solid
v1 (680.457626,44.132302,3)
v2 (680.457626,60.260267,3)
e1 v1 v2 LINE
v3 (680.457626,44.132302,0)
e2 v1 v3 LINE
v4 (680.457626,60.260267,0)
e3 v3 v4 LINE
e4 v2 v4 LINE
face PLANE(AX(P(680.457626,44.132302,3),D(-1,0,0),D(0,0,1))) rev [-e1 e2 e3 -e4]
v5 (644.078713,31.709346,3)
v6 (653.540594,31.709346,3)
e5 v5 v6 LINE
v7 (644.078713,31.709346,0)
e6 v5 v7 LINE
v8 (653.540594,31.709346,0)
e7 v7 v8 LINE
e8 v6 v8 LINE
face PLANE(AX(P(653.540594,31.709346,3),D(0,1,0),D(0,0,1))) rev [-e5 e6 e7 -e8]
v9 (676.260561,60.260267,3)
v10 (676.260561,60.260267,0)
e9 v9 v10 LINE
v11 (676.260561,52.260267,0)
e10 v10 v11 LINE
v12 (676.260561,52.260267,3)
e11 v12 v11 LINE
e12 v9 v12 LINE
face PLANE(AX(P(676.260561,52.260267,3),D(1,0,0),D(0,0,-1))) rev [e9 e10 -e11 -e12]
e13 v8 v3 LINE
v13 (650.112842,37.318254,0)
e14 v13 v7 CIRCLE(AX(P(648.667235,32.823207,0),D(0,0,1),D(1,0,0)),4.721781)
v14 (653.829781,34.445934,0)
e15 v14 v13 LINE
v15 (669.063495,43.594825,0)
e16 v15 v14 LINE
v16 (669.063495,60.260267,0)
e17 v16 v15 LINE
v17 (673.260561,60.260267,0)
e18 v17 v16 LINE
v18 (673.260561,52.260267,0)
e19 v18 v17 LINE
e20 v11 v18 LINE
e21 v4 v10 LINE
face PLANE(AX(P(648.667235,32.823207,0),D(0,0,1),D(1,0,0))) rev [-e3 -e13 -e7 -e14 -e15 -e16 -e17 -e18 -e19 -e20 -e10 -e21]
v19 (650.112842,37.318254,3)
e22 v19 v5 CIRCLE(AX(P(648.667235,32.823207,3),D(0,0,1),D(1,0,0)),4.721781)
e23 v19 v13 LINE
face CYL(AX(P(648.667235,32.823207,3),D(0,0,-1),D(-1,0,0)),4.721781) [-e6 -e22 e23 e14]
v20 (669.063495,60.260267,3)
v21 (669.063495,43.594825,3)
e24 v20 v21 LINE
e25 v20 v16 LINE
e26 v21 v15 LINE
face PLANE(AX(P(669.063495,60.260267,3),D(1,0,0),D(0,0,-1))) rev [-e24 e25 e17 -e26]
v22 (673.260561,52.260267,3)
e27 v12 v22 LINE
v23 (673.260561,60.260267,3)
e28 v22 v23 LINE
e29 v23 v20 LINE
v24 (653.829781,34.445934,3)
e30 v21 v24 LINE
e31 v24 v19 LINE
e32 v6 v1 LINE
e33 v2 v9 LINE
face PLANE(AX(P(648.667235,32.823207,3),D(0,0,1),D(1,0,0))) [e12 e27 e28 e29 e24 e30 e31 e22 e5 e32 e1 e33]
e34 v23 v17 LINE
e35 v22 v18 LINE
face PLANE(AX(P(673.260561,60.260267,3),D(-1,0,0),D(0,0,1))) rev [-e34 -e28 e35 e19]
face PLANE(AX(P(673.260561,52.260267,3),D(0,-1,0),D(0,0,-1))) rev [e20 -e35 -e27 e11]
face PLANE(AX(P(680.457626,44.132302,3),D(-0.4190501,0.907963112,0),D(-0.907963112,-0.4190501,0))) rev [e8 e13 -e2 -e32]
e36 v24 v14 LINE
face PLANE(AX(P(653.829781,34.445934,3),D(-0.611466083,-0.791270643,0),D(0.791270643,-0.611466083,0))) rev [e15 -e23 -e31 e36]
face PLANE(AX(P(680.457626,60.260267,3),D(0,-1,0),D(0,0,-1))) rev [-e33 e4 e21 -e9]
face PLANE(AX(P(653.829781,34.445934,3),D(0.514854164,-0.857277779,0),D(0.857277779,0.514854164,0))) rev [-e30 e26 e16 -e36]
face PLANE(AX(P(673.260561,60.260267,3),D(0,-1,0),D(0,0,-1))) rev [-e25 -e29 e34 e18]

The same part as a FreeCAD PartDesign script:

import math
import FreeCAD as App
import Part
import Sketcher

V = App.Vector
Q = App.Units.Quantity

doc = App.newDocument("Part")
body = doc.addObject("PartDesign::Body", "Body")

# Sketch on XY plane
sketch1 = body.newObject("Sketcher::SketchObject", "Sketch")
sketch1.AttachmentSupport = (doc.getObject("XY_Plane"), [""])
sketch1.MapMode = "FlatFace"
sketch1.addGeometry([
    Part.LineSegment(V(680.5, 60.3, 0), V(676.3, 60.3, 0)),  # 0
    Part.LineSegment(V(676.3, 60.3, 0), V(676.3, 52.3, 0)),  # 1
    Part.LineSegment(V(676.3, 52.3, 0), V(673.3, 52.3, 0)),  # 2
    Part.LineSegment(V(673.3, 52.3, 0), V(673.3, 60.3, 0)),  # 3
    Part.LineSegment(V(673.3, 60.3, 0), V(669.1, 60.3, 0)),  # 4
    Part.LineSegment(V(669.1, 60.3, 0), V(669.1, 43.6, 0)),  # 5
    Part.LineSegment(V(669.1, 43.6, 0), V(653.8, 34.4, 0)),  # 6
    Part.LineSegment(V(653.8, 34.4, 0), V(650.1, 37.3, 0)),  # 7
    Part.ArcOfCircle(Part.Circle(V(648.7, 32.8, 0), V(0, 0, 1), 4.7), math.radians(72), math.radians(194)),  # 8
    Part.LineSegment(V(644.1, 31.7, 0), V(653.5, 31.7, 0)),  # 9
    Part.LineSegment(V(653.5, 31.7, 0), V(680.5, 44.1, 0)),  # 10
    Part.LineSegment(V(680.5, 44.1, 0), V(680.5, 60.3, 0)),  # 11
], False)
sketch1.addConstraint([
    Sketcher.Constraint("Coincident", 0, 2, 1, 1),
    Sketcher.Constraint("Coincident", 1, 2, 2, 1),
    Sketcher.Constraint("Coincident", 2, 2, 3, 1),
    Sketcher.Constraint("Coincident", 3, 2, 4, 1),
    Sketcher.Constraint("Coincident", 4, 2, 5, 1),
    Sketcher.Constraint("Coincident", 5, 2, 6, 1),
    Sketcher.Constraint("Coincident", 6, 2, 7, 1),
    Sketcher.Constraint("Coincident", 7, 2, 8, 1),
    Sketcher.Constraint("Coincident", 8, 2, 9, 1),
    Sketcher.Constraint("Coincident", 9, 2, 10, 1),
    Sketcher.Constraint("Coincident", 10, 2, 11, 1),
    Sketcher.Constraint("Coincident", 11, 2, 0, 1),
    Sketcher.Constraint("Horizontal", 0),
    Sketcher.Constraint("Vertical", 1),
    Sketcher.Constraint("Horizontal", 2),
    Sketcher.Constraint("Vertical", 3),
    Sketcher.Constraint("Horizontal", 4),
    Sketcher.Constraint("Vertical", 5),
    Sketcher.Constraint("Horizontal", 9),
    Sketcher.Constraint("Vertical", 11),
    Sketcher.Constraint("Horizontal", 0, 2, 3, 2),
    Sketcher.Constraint("Equal", 0, 4),
    Sketcher.Constraint("DistanceX", 2, 2, 2, 1, Q("3 mm")),
    Sketcher.Constraint("DistanceY", 1, 2, 1, 1, Q("8 mm")),
    Sketcher.Constraint("Radius", 8, Q("4.721781 mm")),
    Sketcher.Constraint("DistanceX", 9, 1, 9, 2, Q("9.461881 mm")),
    Sketcher.Constraint("DistanceY", 5, 2, 5, 1, Q("16.665441 mm")),
    Sketcher.Constraint("DistanceY", -1, 1, 10, 2, Q("44.132302 mm")),
    Sketcher.Constraint("DistanceX", 9, 2, 5, 2, Q("15.522902 mm")),
    Sketcher.Constraint("Distance", 6, Q("17.769869 mm")),
    Sketcher.Constraint("Distance", 7, Q("4.697431 mm")),
    Sketcher.Constraint("DistanceX", 0, 2, 0, 1, Q("4.197065 mm")),
    Sketcher.Constraint("DistanceY", 11, 1, 11, 2, Q("16.127965 mm")),
    Sketcher.Constraint("DistanceX", -1, 1, 0, 2, Q("676.260561 mm")),
    Sketcher.Constraint("DistanceX", -1, 1, 6, 2, Q("653.829781 mm")),
    Sketcher.Constraint("DistanceY", 8, 3, 0, 2, Q("27.437059 mm")),
    Sketcher.Constraint("DistanceX", 8, 3, 4, 2, Q("20.39626 mm")),
])
pad1 = body.newObject("PartDesign::Pad", "Pad")
pad1.Profile = sketch1
pad1.Length = 3

doc.recompute()
